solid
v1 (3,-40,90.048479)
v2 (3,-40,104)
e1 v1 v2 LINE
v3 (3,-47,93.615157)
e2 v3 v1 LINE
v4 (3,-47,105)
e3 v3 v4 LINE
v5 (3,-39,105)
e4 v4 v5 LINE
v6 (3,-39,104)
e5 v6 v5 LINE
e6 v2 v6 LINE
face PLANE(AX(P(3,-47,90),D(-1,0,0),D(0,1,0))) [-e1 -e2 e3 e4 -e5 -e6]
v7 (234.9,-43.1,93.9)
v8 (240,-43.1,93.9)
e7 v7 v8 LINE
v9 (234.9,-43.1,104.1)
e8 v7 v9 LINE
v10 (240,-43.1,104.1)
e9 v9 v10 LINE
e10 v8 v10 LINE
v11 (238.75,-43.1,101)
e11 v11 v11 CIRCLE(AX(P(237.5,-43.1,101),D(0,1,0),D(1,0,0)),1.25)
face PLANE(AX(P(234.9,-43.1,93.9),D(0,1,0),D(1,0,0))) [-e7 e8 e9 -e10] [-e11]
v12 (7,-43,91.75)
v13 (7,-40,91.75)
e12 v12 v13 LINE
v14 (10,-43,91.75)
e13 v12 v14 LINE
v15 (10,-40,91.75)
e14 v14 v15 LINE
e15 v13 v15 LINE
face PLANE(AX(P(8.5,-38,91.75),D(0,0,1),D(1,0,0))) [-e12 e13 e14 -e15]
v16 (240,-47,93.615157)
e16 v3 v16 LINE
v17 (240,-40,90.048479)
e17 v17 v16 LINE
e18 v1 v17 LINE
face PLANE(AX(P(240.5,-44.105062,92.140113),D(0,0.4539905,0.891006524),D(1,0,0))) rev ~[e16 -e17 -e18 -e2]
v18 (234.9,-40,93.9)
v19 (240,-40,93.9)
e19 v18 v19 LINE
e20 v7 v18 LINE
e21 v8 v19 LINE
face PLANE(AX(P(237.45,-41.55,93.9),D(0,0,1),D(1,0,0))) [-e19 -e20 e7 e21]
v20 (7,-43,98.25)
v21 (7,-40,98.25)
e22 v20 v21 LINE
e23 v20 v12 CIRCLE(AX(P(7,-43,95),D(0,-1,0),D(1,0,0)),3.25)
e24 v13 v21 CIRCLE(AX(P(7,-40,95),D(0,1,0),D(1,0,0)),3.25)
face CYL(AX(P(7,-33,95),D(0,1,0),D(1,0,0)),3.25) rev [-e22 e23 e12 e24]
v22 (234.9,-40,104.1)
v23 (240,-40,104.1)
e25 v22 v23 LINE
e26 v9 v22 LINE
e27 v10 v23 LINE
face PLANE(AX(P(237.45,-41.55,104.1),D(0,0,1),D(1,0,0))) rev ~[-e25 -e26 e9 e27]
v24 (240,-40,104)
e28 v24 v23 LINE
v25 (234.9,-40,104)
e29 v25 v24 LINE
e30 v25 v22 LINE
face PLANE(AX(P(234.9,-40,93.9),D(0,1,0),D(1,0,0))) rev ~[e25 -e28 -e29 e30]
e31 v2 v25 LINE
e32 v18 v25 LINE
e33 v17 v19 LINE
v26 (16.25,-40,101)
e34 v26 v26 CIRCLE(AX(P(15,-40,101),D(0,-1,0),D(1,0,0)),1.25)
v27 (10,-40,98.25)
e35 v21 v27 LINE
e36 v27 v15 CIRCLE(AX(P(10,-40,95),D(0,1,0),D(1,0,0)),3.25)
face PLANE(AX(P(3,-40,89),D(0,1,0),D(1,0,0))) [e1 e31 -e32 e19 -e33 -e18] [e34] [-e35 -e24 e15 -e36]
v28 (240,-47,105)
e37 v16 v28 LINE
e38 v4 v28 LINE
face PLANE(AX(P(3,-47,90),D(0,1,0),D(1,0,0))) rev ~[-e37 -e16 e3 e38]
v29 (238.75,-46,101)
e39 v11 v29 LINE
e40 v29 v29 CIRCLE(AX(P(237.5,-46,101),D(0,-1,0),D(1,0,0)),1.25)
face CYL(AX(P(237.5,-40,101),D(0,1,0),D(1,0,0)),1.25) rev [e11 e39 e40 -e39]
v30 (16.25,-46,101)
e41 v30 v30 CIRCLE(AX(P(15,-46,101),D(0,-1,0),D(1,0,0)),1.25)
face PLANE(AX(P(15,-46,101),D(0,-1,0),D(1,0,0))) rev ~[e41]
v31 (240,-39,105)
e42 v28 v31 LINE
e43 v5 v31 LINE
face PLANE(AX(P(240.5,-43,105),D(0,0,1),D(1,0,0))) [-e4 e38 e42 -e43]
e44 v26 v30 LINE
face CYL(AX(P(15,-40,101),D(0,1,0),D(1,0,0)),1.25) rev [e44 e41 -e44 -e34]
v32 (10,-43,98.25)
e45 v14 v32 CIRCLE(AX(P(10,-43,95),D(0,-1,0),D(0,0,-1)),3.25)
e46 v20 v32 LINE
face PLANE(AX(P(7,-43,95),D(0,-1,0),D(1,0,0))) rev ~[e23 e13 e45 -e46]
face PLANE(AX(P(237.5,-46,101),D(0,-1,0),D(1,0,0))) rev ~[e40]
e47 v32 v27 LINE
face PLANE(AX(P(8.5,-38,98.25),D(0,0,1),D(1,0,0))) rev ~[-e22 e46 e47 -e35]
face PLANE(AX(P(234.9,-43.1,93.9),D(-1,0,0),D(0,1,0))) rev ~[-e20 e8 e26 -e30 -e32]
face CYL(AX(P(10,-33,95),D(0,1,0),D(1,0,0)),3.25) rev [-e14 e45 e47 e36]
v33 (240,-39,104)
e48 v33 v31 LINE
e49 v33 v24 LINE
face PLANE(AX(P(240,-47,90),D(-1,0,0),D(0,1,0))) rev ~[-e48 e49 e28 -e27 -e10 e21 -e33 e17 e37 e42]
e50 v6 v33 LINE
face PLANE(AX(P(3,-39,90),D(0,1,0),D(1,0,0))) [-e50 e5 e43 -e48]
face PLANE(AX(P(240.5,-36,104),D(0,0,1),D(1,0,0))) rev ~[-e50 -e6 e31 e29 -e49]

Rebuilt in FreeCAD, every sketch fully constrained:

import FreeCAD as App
import Part
import Sketcher
Q = App.Units.Quantity

doc = App.newDocument("Part")
params = doc.addObject("Spreadsheet::Sheet", "Params")
for row, (alias, value) in enumerate([
    ("sketch1_width", "3 mm"),
    ("sketch1_height", "10 mm"),
    ("pad1_length", "6.5 mm"),
    ("sketch2_diameter", "6.5 mm"),
    ("pad2_length", "10 mm"),
    ("sketch3_diameter", "2.5 mm"),
    ("pad3_length", "6 mm"),
    ("sketch4_diameter", "2.5 mm"),
    ("pad4_length", "6 mm"),
    ("sketch5_width", "5.1 mm"),
    ("sketch5_height", "3.1 mm"),
    ("pad5_length", "10.2 mm"),
    ("sketch6_diameter", "6.5 mm"),
    ("pad6_length", "10 mm"),
    ("sketch7_width", "238 mm"),
    ("sketch7_height", "8 mm"),
    ("pad7_length", "15 mm"),
    ("sketch8_width", "37 mm"),
    ("sketch8_height", "160 mm"),
    ("pad8_length", "120 mm"),
    ("sketch9_width", "475 mm"),
    ("sketch9_height", "10 mm"),
    ("pad9_length", "10 mm"),
    ("sketch10_width", "475 mm"),
    ("sketch10_height", "8 mm"),
    ("pad10_length", "15 mm"),
    ("sketch11_width", "475 mm"),
    ("sketch11_height", "8 mm"),
    ("pad11_length", "15 mm"),
], start=1):
    params.set(f"A{row}", alias)
    params.set(f"B{row}", "=" + value)
    params.setAlias(f"B{row}", alias)

body = doc.addObject("PartDesign::Body", "Body")

# Sketch on XY plane
sketch1 = body.newObject("Sketcher::SketchObject", "Sketch")
sketch1.AttachmentSupport = (doc.getObject("XY_Plane"), [""])
sketch1.MapMode = "FlatFace"
sketch1.AttachmentOffset = App.Placement(App.Vector(0, 0, 91.75), App.Rotation())
sketch1.addGeometry([
    Part.LineSegment(App.Vector(7, -33, 0), App.Vector(7, -43, 0)),
    Part.LineSegment(App.Vector(7, -43, 0), App.Vector(10, -43, 0)),
    Part.LineSegment(App.Vector(10, -43, 0), App.Vector(10, -33, 0)),
    Part.LineSegment(App.Vector(10, -33, 0), App.Vector(7, -33, 0)),
], False)
sketch1.addConstraint([
    Sketcher.Constraint("Coincident", 0, 2, 1, 1),
    Sketcher.Constraint("Coincident", 1, 2, 2, 1),
    Sketcher.Constraint("Coincident", 2, 2, 3, 1),
    Sketcher.Constraint("Coincident", 3, 2, 0, 1),
    Sketcher.Constraint("Vertical", 0),
    Sketcher.Constraint("Horizontal", 1),
    Sketcher.Constraint("Vertical", 2),
    Sketcher.Constraint("Horizontal", 3),
    Sketcher.Constraint("DistanceX", 1, 1, 1, 2, Q("3 mm")),
    Sketcher.Constraint("DistanceY", 0, 2, 0, 1, Q("10 mm")),
    Sketcher.Constraint("DistanceX", -1, 1, 0, 2, Q("7 mm")),
    Sketcher.Constraint("DistanceY", 0, 2, -1, 1, Q("43 mm")),
])
sketch1.setExpression("Constraints[8]", "Params.sketch1_width")
sketch1.setExpression("Constraints[9]", "Params.sketch1_height")
pad1 = body.newObject("PartDesign::Pad", "Pad")
pad1.Profile = sketch1
pad1.setExpression("Length", "Params.pad1_length")
body2 = doc.addObject("PartDesign::Body", "Body001")

# Sketch on XY plane
sketch2 = body2.newObject("Sketcher::SketchObject", "Sketch001")
sketch2.AttachmentSupport = (doc.getObject("XY_Plane001"), [""])
sketch2.MapMode = "FlatFace"
sketch2.addGeometry(Part.Circle(App.Vector(0, 0, 0), App.Vector(0, 0, 1), 3.2), False)
sketch2.addConstraint([
    Sketcher.Constraint("Coincident", 0, 3, -1, 1),
    Sketcher.Constraint("Diameter", 0, Q("6.5 mm")),
])
sketch2.setExpression("Constraints[1]", "Params.sketch2_diameter")
pad2 = body2.newObject("PartDesign::Pad", "Pad001")
pad2.Profile = sketch2
pad2.setExpression("Length", "Params.pad2_length")
body3 = doc.addObject("PartDesign::Body", "Body002")
doc.recompute()

body2.Placement = App.Placement(App.Vector(0, 0, 0), App.Rotation(App.Vector(1, 0, 0), 90))
boolean = body3.newObject("PartDesign::Boolean", "Boolean")
boolean.Type = "Fuse"
boolean.addObjects([body2])
body4 = doc.addObject("PartDesign::Body", "Body003")
doc.recompute()

body3.Placement = App.Placement(App.Vector(10, -33, 95), App.Rotation(App.Vector(0, 0, 1), 0))
boolean2 = body4.newObject("PartDesign::Boolean", "Boolean001")
boolean2.Type = "Fuse"
boolean2.addObjects([body3])
doc.recompute()

boolean3 = body4.newObject("PartDesign::Boolean", "Boolean002")
boolean3.Type = "Fuse"
boolean3.addObjects([body])
body5 = doc.addObject("PartDesign::Body", "Body004")

# Sketch on XY plane
sketch3 = body5.newObject("Sketcher::SketchObject", "Sketch002")
sketch3.AttachmentSupport = (doc.getObject("XY_Plane004"), [""])
sketch3.MapMode = "FlatFace"
sketch3.addGeometry(Part.Circle(App.Vector(0, 0, 0), App.Vector(0, 0, 1), 1.2), False)
sketch3.addConstraint([
    Sketcher.Constraint("Coincident", 0, 3, -1, 1),
    Sketcher.Constraint("Diameter", 0, Q("2.5 mm")),
])
sketch3.setExpression("Constraints[1]", "Params.sketch3_diameter")
pad3 = body5.newObject("PartDesign::Pad", "Pad002")
pad3.Profile = sketch3
pad3.setExpression("Length", "Params.pad3_length")
body6 = doc.addObject("PartDesign::Body", "Body005")
doc.recompute()

body5.Placement = App.Placement(App.Vector(0, 0, 0), App.Rotation(App.Vector(1, 0, 0), 90))
boolean4 = body6.newObject("PartDesign::Boolean", "Boolean003")
boolean4.Type = "Fuse"
boolean4.addObjects([body5])
body7 = doc.addObject("PartDesign::Body", "Body006")
doc.recompute()

body6.Placement = App.Placement(App.Vector(237.5, -40, 101), App.Rotation(App.Vector(0, 0, 1), 0))
boolean5 = body7.newObject("PartDesign::Boolean", "Boolean004")
boolean5.Type = "Fuse"
boolean5.addObjects([body6])
body8 = doc.addObject("PartDesign::Body", "Body007")

# Sketch on XY plane
sketch4 = body8.newObject("Sketcher::SketchObject", "Sketch003")
sketch4.AttachmentSupport = (doc.getObject("XY_Plane007"), [""])
sketch4.MapMode = "FlatFace"
sketch4.addGeometry(Part.Circle(App.Vector(0, 0, 0), App.Vector(0, 0, 1), 1.2), False)
sketch4.addConstraint([
    Sketcher.Constraint("Coincident", 0, 3, -1, 1),
    Sketcher.Constraint("Diameter", 0, Q("2.5 mm")),
])
sketch4.setExpression("Constraints[1]", "Params.sketch4_diameter")
pad4 = body8.newObject("PartDesign::Pad", "Pad003")
pad4.Profile = sketch4
pad4.setExpression("Length", "Params.pad4_length")
body9 = doc.addObject("PartDesign::Body", "Body008")
doc.recompute()

body8.Placement = App.Placement(App.Vector(0, 0, 0), App.Rotation(App.Vector(1, 0, 0), 90))
boolean6 = body9.newObject("PartDesign::Boolean", "Boolean005")
boolean6.Type = "Fuse"
boolean6.addObjects([body8])
body10 = doc.addObject("PartDesign::Body", "Body009")
body10.AllowCompound = True
doc.recompute()

body9.Placement = App.Placement(App.Vector(15, -40, 101), App.Rotation(App.Vector(0, 0, 1), 0))
boolean7 = body10.newObject("PartDesign::Boolean", "Boolean006")
boolean7.Type = "Fuse"
boolean7.addObjects([body9])
doc.recompute()

boolean8 = body10.newObject("PartDesign::Boolean", "Boolean007")
boolean8.Type = "Fuse"
boolean8.addObjects([body7])
body11 = doc.addObject("PartDesign::Body", "Body010")

# Sketch on XY plane
sketch5 = body11.newObject("Sketcher::SketchObject", "Sketch004")
sketch5.AttachmentSupport = (doc.getObject("XY_Plane010"), [""])
sketch5.MapMode = "FlatFace"
sketch5.AttachmentOffset = App.Placement(App.Vector(0, 0, 93.9), App.Rotation())
sketch5.addGeometry([
    Part.LineSegment(App.Vector(234.9, -40, 0), App.Vector(234.9, -43.1, 0)),
    Part.LineSegment(App.Vector(234.9, -43.1, 0), App.Vector(240, -43.1, 0)),
    Part.LineSegment(App.Vector(240, -43.1, 0), App.Vector(240, -40, 0)),
    Part.LineSegment(App.Vector(240, -40, 0), App.Vector(234.9, -40, 0)),
], False)
sketch5.addConstraint([
    Sketcher.Constraint("Coincident", 0, 2, 1, 1),
    Sketcher.Constraint("Coincident", 1, 2, 2, 1),
    Sketcher.Constraint("Coincident", 2, 2, 3, 1),
    Sketcher.Constraint("Coincident", 3, 2, 0, 1),
    Sketcher.Constraint("Vertical", 0),
    Sketcher.Constraint("Horizontal", 1),
    Sketcher.Constraint("Vertical", 2),
    Sketcher.Constraint("Horizontal", 3),
    Sketcher.Constraint("DistanceX", 1, 1, 1, 2, Q("5.1 mm")),
    Sketcher.Constraint("DistanceY", 0, 2, 0, 1, Q("3.1 mm")),
    Sketcher.Constraint("DistanceX", -1, 1, 1, 2, Q("240 mm")),
    Sketcher.Constraint("DistanceY", 2, 2, -1, 1, Q("40 mm")),
])
sketch5.setExpression("Constraints[8]", "Params.sketch5_width")
sketch5.setExpression("Constraints[9]", "Params.sketch5_height")
pad5 = body11.newObject("PartDesign::Pad", "Pad004")
pad5.Profile = sketch5
pad5.setExpression("Length", "Params.pad5_length")
body12 = doc.addObject("PartDesign::Body", "Body011")

# Sketch on XY plane
sketch6 = body12.newObject("Sketcher::SketchObject", "Sketch005")
sketch6.AttachmentSupport = (doc.getObject("XY_Plane011"), [""])
sketch6.MapMode = "FlatFace"
sketch6.addGeometry(Part.Circle(App.Vector(0, 0, 0), App.Vector(0, 0, 1), 3.2), False)
sketch6.addConstraint([
    Sketcher.Constraint("Coincident", 0, 3, -1, 1),
    Sketcher.Constraint("Diameter", 0, Q("6.5 mm")),
])
sketch6.setExpression("Constraints[1]", "Params.sketch6_diameter")
pad6 = body12.newObject("PartDesign::Pad", "Pad005")
pad6.Profile = sketch6
pad6.setExpression("Length", "Params.pad6_length")
body13 = doc.addObject("PartDesign::Body", "Body012")
doc.recompute()

body12.Placement = App.Placement(App.Vector(0, 0, 0), App.Rotation(App.Vector(1, 0, 0), 90))
boolean9 = body13.newObject("PartDesign::Boolean", "Boolean008")
boolean9.Type = "Fuse"
boolean9.addObjects([body12])
body14 = doc.addObject("PartDesign::Body", "Body013")
doc.recompute()

body13.Placement = App.Placement(App.Vector(7, -33, 95), App.Rotation(App.Vector(0, 0, 1), 0))
boolean10 = body14.newObject("PartDesign::Boolean", "Boolean009")
boolean10.Type = "Fuse"
boolean10.addObjects([body13])
body15 = doc.addObject("PartDesign::Body", "Body014")

# Sketch on XY plane
sketch7 = body15.newObject("Sketcher::SketchObject", "Sketch006")
sketch7.AttachmentSupport = (doc.getObject("XY_Plane014"), [""])
sketch7.MapMode = "FlatFace"
sketch7.AttachmentOffset = App.Placement(App.Vector(0, 0, 90), App.Rotation())
sketch7.addGeometry([
    Part.LineSegment(App.Vector(240, -39, 0), App.Vector(240, -47, 0)),
    Part.LineSegment(App.Vector(240, -47, 0), App.Vector(478, -47, 0)),
    Part.LineSegment(App.Vector(478, -47, 0), App.Vector(478, -39, 0)),
    Part.LineSegment(App.Vector(478, -39, 0), App.Vector(240, -39, 0)),
], False)
sketch7.addConstraint([
    Sketcher.Constraint("Coincident", 0, 2, 1, 1),
    Sketcher.Constraint("Coincident", 1, 2, 2, 1),
    Sketcher.Constraint("Coincident", 2, 2, 3, 1),
    Sketcher.Constraint("Coincident", 3, 2, 0, 1),
    Sketcher.Constraint("Vertical", 0),
    Sketcher.Constraint("Horizontal", 1),
    Sketcher.Constraint("Vertical", 2),
    Sketcher.Constraint("Horizontal", 3),
    Sketcher.Constraint("DistanceX", 1, 1, 1, 2, Q("238 mm")),
    Sketcher.Constraint("DistanceY", 0, 2, 0, 1, Q("8 mm")),
    Sketcher.Constraint("DistanceX", -1, 1, 0, 2, Q("240 mm")),
    Sketcher.Constraint("DistanceY", 0, 2, -1, 1, Q("47 mm")),
])
sketch7.setExpression("Constraints[8]", "Params.sketch7_width")
sketch7.setExpression("Constraints[9]", "Params.sketch7_height")
pad7 = body15.newObject("PartDesign::Pad", "Pad006")
pad7.Profile = sketch7
pad7.setExpression("Length", "Params.pad7_length")
body16 = doc.addObject("PartDesign::Body", "Body015")

# Sketch on XY plane
sketch8 = body16.newObject("Sketcher::SketchObject", "Sketch007")
sketch8.AttachmentSupport = (doc.getObject("XY_Plane015"), [""])
sketch8.MapMode = "FlatFace"
sketch8.addGeometry([
    Part.LineSegment(App.Vector(0, 160, 0), App.Vector(0, 0, 0)),
    Part.LineSegment(App.Vector(0, 0, 0), App.Vector(37, 0, 0)),
    Part.LineSegment(App.Vector(37, 0, 0), App.Vector(37, 160, 0)),
    Part.LineSegment(App.Vector(37, 160, 0), App.Vector(0, 160, 0)),
], False)
sketch8.addConstraint([
    Sketcher.Constraint("Coincident", 0, 2, 1, 1),
    Sketcher.Constraint("Coincident", 1, 2, 2, 1),
    Sketcher.Constraint("Coincident", 2, 2, 3, 1),
    Sketcher.Constraint("Coincident", 3, 2, 0, 1),
    Sketcher.Constraint("Vertical", 0),
    Sketcher.Constraint("Horizontal", 1),
    Sketcher.Constraint("Vertical", 2),
    Sketcher.Constraint("Horizontal", 3),
    Sketcher.Constraint("Coincident", 0, 2, -1, 1),
    Sketcher.Constraint("DistanceX", 1, 1, 1, 2, Q("37 mm")),
    Sketcher.Constraint("DistanceY", 0, 2, 0, 1, Q("160 mm")),
])
sketch8.setExpression("Constraints[9]", "Params.sketch8_width")
sketch8.setExpression("Constraints[10]", "Params.sketch8_height")
pad8 = body16.newObject("PartDesign::Pad", "Pad007")
pad8.Profile = sketch8
pad8.setExpression("Length", "Params.pad8_length")
body17 = doc.addObject("PartDesign::Body", "Body016")
doc.recompute()

body16.Placement = App.Placement(App.Vector(0, 0, 0), App.Rotation(App.Vector(0, 1, 0), 345))
boolean11 = body17.newObject("PartDesign::Boolean", "Boolean010")
boolean11.Type = "Fuse"
boolean11.addObjects([body16])
body18 = doc.addObject("PartDesign::Body", "Body017")
doc.recompute()

body17.Placement = App.Placement(App.Vector(502.2, -50, -4), App.Rotation(App.Vector(0, 0, 1), 0))
boolean12 = body18.newObject("PartDesign::Boolean", "Boolean011")
boolean12.Type = "Fuse"
boolean12.addObjects([body17])
body19 = doc.addObject("PartDesign::Body", "Body018")

# Sketch on XY plane
sketch9 = body19.newObject("Sketcher::SketchObject", "Sketch008")
sketch9.AttachmentSupport = (doc.getObject("XY_Plane018"), [""])
sketch9.MapMode = "FlatFace"
sketch9.addGeometry([
    Part.LineSegment(App.Vector(0, 10, 0), App.Vector(0, 0, 0)),
    Part.LineSegment(App.Vector(0, 0, 0), App.Vector(475, 0, 0)),
    Part.LineSegment(App.Vector(475, 0, 0), App.Vector(475, 10, 0)),
    Part.LineSegment(App.Vector(475, 10, 0), App.Vector(0, 10, 0)),
], False)
sketch9.addConstraint([
    Sketcher.Constraint("Coincident", 0, 2, 1, 1),
    Sketcher.Constraint("Coincident", 1, 2, 2, 1),
    Sketcher.Constraint("Coincident", 2, 2, 3, 1),
    Sketcher.Constraint("Coincident", 3, 2, 0, 1),
    Sketcher.Constraint("Vertical", 0),
    Sketcher.Constraint("Horizontal", 1),
    Sketcher.Constraint("Vertical", 2),
    Sketcher.Constraint("Horizontal", 3),
    Sketcher.Constraint("Coincident", 0, 2, -1, 1),
    Sketcher.Constraint("DistanceX", 1, 1, 1, 2, Q("475 mm")),
    Sketcher.Constraint("DistanceY", 0, 2, 0, 1, Q("10 mm")),
])
sketch9.setExpression("Constraints[9]", "Params.sketch9_width")
sketch9.setExpression("Constraints[10]", "Params.sketch9_height")
pad9 = body19.newObject("PartDesign::Pad", "Pad008")
pad9.Profile = sketch9
pad9.setExpression("Length", "Params.pad9_length")
body20 = doc.addObject("PartDesign::Body", "Body019")
doc.recompute()

body19.Placement = App.Placement(App.Vector(0, 0, 0), App.Rotation(App.Vector(1, 0, 0), 333))
boolean13 = body20.newObject("PartDesign::Boolean", "Boolean012")
boolean13.Type = "Fuse"
boolean13.addObjects([body19])
body21 = doc.addObject("PartDesign::Body", "Body020")
doc.recompute()

body20.Placement = App.Placement(App.Vector(0, -53.1, 85.5), App.Rotation(App.Vector(0, 0, 1), 0))
boolean14 = body21.newObject("PartDesign::Boolean", "Boolean013")
boolean14.Type = "Fuse"
boolean14.addObjects([body20])
body22 = doc.addObject("PartDesign::Body", "Body021")

# Sketch on XY plane
sketch10 = body22.newObject("Sketcher::SketchObject", "Sketch009")
sketch10.AttachmentSupport = (doc.getObject("XY_Plane021"), [""])
sketch10.MapMode = "FlatFace"
sketch10.AttachmentOffset = App.Placement(App.Vector(0, 0, 89), App.Rotation())
sketch10.addGeometry([
    Part.LineSegment(App.Vector(0, -32, 0), App.Vector(0, -40, 0)),
    Part.LineSegment(App.Vector(0, -40, 0), App.Vector(475, -40, 0)),
    Part.LineSegment(App.Vector(475, -40, 0), App.Vector(475, -32, 0)),
    Part.LineSegment(App.Vector(475, -32, 0), App.Vector(0, -32, 0)),
], False)
sketch10.addConstraint([
    Sketcher.Constraint("Coincident", 0, 2, 1, 1),
    Sketcher.Constraint("Coincident", 1, 2, 2, 1),
    Sketcher.Constraint("Coincident", 2, 2, 3, 1),
    Sketcher.Constraint("Coincident", 3, 2, 0, 1),
    Sketcher.Constraint("Vertical", 0),
    Sketcher.Constraint("Horizontal", 1),
    Sketcher.Constraint("Vertical", 2),
    Sketcher.Constraint("Horizontal", 3),
    Sketcher.Constraint("PointOnObject", 0, 2, -2),
    Sketcher.Constraint("DistanceX", 1, 1, 1, 2, Q("475 mm")),
    Sketcher.Constraint("DistanceY", 0, 2, 0, 1, Q("8 mm")),
    Sketcher.Constraint("DistanceY", 0, 2, -1, 1, Q("40 mm")),
])
sketch10.setExpression("Constraints[9]", "Params.sketch10_width")
sketch10.setExpression("Constraints[10]", "Params.sketch10_height")
pad10 = body22.newObject("PartDesign::Pad", "Pad009")
pad10.Profile = sketch10
pad10.setExpression("Length", "Params.pad10_length")
body23 = doc.addObject("PartDesign::Body", "Body022")

# Sketch on XY plane
sketch11 = body23.newObject("Sketcher::SketchObject", "Sketch010")
sketch11.AttachmentSupport = (doc.getObject("XY_Plane022"), [""])
sketch11.MapMode = "FlatFace"
sketch11.AttachmentOffset = App.Placement(App.Vector(0, 0, 90), App.Rotation())
sketch11.addGeometry([
    Part.LineSegment(App.Vector(0, -39, 0), App.Vector(0, -47, 0)),
    Part.LineSegment(App.Vector(0, -47, 0), App.Vector(475, -47, 0)),
    Part.LineSegment(App.Vector(475, -47, 0), App.Vector(475, -39, 0)),
    Part.LineSegment(App.Vector(475, -39, 0), App.Vector(0, -39, 0)),
], False)
sketch11.addConstraint([
    Sketcher.Constraint("Coincident", 0, 2, 1, 1),
    Sketcher.Constraint("Coincident", 1, 2, 2, 1),
    Sketcher.Constraint("Coincident", 2, 2, 3, 1),
    Sketcher.Constraint("Coincident", 3, 2, 0, 1),
    Sketcher.Constraint("Vertical", 0),
    Sketcher.Constraint("Horizontal", 1),
    Sketcher.Constraint("Vertical", 2),
    Sketcher.Constraint("Horizontal", 3),
    Sketcher.Constraint("PointOnObject", 0, 2, -2),
    Sketcher.Constraint("DistanceX", 1, 1, 1, 2, Q("475 mm")),
    Sketcher.Constraint("DistanceY", 0, 2, 0, 1, Q("8 mm")),
    Sketcher.Constraint("DistanceY", 0, 2, -1, 1, Q("47 mm")),
])
sketch11.setExpression("Constraints[9]", "Params.sketch11_width")
sketch11.setExpression("Constraints[10]", "Params.sketch11_height")
pad11 = body23.newObject("PartDesign::Pad", "Pad010")
pad11.Profile = sketch11
pad11.setExpression("Length", "Params.pad11_length")
doc.recompute()

boolean15 = body23.newObject("PartDesign::Boolean", "Boolean014")
boolean15.Type = "Cut"
boolean15.addObjects([body22])
doc.recompute()

boolean16 = body23.newObject("PartDesign::Boolean", "Boolean015")
boolean16.Type = "Cut"
boolean16.addObjects([body21])
body24 = doc.addObject("PartDesign::Body", "Body023")
doc.recompute()

body23.Placement = App.Placement(App.Vector(3, 0, 0), App.Rotation(App.Vector(0, 0, 1), 0))
boolean17 = body24.newObject("PartDesign::Boolean", "Boolean016")
boolean17.Type = "Fuse"
boolean17.addObjects([body23])
doc.recompute()

boolean18 = body24.newObject("PartDesign::Boolean", "Boolean017")
boolean18.Type = "Cut"
boolean18.addObjects([body18])
doc.recompute()

boolean19 = body24.newObject("PartDesign::Boolean", "Boolean018")
boolean19.Type = "Cut"
boolean19.addObjects([body15])
doc.recompute()

boolean20 = body24.newObject("PartDesign::Boolean", "Boolean019")
boolean20.Type = "Cut"
boolean20.addObjects([body14])
doc.recompute()

boolean21 = body24.newObject("PartDesign::Boolean", "Boolean020")
boolean21.Type = "Cut"
boolean21.addObjects([body11])
doc.recompute()

boolean22 = body24.newObject("PartDesign::Boolean", "Boolean021")
boolean22.Type = "Cut"
boolean22.addObjects([body10])
doc.recompute()

boolean23 = body24.newObject("PartDesign::Boolean", "Boolean022")
boolean23.Type = "Cut"
boolean23.addObjects([body4])

doc.recompute()
